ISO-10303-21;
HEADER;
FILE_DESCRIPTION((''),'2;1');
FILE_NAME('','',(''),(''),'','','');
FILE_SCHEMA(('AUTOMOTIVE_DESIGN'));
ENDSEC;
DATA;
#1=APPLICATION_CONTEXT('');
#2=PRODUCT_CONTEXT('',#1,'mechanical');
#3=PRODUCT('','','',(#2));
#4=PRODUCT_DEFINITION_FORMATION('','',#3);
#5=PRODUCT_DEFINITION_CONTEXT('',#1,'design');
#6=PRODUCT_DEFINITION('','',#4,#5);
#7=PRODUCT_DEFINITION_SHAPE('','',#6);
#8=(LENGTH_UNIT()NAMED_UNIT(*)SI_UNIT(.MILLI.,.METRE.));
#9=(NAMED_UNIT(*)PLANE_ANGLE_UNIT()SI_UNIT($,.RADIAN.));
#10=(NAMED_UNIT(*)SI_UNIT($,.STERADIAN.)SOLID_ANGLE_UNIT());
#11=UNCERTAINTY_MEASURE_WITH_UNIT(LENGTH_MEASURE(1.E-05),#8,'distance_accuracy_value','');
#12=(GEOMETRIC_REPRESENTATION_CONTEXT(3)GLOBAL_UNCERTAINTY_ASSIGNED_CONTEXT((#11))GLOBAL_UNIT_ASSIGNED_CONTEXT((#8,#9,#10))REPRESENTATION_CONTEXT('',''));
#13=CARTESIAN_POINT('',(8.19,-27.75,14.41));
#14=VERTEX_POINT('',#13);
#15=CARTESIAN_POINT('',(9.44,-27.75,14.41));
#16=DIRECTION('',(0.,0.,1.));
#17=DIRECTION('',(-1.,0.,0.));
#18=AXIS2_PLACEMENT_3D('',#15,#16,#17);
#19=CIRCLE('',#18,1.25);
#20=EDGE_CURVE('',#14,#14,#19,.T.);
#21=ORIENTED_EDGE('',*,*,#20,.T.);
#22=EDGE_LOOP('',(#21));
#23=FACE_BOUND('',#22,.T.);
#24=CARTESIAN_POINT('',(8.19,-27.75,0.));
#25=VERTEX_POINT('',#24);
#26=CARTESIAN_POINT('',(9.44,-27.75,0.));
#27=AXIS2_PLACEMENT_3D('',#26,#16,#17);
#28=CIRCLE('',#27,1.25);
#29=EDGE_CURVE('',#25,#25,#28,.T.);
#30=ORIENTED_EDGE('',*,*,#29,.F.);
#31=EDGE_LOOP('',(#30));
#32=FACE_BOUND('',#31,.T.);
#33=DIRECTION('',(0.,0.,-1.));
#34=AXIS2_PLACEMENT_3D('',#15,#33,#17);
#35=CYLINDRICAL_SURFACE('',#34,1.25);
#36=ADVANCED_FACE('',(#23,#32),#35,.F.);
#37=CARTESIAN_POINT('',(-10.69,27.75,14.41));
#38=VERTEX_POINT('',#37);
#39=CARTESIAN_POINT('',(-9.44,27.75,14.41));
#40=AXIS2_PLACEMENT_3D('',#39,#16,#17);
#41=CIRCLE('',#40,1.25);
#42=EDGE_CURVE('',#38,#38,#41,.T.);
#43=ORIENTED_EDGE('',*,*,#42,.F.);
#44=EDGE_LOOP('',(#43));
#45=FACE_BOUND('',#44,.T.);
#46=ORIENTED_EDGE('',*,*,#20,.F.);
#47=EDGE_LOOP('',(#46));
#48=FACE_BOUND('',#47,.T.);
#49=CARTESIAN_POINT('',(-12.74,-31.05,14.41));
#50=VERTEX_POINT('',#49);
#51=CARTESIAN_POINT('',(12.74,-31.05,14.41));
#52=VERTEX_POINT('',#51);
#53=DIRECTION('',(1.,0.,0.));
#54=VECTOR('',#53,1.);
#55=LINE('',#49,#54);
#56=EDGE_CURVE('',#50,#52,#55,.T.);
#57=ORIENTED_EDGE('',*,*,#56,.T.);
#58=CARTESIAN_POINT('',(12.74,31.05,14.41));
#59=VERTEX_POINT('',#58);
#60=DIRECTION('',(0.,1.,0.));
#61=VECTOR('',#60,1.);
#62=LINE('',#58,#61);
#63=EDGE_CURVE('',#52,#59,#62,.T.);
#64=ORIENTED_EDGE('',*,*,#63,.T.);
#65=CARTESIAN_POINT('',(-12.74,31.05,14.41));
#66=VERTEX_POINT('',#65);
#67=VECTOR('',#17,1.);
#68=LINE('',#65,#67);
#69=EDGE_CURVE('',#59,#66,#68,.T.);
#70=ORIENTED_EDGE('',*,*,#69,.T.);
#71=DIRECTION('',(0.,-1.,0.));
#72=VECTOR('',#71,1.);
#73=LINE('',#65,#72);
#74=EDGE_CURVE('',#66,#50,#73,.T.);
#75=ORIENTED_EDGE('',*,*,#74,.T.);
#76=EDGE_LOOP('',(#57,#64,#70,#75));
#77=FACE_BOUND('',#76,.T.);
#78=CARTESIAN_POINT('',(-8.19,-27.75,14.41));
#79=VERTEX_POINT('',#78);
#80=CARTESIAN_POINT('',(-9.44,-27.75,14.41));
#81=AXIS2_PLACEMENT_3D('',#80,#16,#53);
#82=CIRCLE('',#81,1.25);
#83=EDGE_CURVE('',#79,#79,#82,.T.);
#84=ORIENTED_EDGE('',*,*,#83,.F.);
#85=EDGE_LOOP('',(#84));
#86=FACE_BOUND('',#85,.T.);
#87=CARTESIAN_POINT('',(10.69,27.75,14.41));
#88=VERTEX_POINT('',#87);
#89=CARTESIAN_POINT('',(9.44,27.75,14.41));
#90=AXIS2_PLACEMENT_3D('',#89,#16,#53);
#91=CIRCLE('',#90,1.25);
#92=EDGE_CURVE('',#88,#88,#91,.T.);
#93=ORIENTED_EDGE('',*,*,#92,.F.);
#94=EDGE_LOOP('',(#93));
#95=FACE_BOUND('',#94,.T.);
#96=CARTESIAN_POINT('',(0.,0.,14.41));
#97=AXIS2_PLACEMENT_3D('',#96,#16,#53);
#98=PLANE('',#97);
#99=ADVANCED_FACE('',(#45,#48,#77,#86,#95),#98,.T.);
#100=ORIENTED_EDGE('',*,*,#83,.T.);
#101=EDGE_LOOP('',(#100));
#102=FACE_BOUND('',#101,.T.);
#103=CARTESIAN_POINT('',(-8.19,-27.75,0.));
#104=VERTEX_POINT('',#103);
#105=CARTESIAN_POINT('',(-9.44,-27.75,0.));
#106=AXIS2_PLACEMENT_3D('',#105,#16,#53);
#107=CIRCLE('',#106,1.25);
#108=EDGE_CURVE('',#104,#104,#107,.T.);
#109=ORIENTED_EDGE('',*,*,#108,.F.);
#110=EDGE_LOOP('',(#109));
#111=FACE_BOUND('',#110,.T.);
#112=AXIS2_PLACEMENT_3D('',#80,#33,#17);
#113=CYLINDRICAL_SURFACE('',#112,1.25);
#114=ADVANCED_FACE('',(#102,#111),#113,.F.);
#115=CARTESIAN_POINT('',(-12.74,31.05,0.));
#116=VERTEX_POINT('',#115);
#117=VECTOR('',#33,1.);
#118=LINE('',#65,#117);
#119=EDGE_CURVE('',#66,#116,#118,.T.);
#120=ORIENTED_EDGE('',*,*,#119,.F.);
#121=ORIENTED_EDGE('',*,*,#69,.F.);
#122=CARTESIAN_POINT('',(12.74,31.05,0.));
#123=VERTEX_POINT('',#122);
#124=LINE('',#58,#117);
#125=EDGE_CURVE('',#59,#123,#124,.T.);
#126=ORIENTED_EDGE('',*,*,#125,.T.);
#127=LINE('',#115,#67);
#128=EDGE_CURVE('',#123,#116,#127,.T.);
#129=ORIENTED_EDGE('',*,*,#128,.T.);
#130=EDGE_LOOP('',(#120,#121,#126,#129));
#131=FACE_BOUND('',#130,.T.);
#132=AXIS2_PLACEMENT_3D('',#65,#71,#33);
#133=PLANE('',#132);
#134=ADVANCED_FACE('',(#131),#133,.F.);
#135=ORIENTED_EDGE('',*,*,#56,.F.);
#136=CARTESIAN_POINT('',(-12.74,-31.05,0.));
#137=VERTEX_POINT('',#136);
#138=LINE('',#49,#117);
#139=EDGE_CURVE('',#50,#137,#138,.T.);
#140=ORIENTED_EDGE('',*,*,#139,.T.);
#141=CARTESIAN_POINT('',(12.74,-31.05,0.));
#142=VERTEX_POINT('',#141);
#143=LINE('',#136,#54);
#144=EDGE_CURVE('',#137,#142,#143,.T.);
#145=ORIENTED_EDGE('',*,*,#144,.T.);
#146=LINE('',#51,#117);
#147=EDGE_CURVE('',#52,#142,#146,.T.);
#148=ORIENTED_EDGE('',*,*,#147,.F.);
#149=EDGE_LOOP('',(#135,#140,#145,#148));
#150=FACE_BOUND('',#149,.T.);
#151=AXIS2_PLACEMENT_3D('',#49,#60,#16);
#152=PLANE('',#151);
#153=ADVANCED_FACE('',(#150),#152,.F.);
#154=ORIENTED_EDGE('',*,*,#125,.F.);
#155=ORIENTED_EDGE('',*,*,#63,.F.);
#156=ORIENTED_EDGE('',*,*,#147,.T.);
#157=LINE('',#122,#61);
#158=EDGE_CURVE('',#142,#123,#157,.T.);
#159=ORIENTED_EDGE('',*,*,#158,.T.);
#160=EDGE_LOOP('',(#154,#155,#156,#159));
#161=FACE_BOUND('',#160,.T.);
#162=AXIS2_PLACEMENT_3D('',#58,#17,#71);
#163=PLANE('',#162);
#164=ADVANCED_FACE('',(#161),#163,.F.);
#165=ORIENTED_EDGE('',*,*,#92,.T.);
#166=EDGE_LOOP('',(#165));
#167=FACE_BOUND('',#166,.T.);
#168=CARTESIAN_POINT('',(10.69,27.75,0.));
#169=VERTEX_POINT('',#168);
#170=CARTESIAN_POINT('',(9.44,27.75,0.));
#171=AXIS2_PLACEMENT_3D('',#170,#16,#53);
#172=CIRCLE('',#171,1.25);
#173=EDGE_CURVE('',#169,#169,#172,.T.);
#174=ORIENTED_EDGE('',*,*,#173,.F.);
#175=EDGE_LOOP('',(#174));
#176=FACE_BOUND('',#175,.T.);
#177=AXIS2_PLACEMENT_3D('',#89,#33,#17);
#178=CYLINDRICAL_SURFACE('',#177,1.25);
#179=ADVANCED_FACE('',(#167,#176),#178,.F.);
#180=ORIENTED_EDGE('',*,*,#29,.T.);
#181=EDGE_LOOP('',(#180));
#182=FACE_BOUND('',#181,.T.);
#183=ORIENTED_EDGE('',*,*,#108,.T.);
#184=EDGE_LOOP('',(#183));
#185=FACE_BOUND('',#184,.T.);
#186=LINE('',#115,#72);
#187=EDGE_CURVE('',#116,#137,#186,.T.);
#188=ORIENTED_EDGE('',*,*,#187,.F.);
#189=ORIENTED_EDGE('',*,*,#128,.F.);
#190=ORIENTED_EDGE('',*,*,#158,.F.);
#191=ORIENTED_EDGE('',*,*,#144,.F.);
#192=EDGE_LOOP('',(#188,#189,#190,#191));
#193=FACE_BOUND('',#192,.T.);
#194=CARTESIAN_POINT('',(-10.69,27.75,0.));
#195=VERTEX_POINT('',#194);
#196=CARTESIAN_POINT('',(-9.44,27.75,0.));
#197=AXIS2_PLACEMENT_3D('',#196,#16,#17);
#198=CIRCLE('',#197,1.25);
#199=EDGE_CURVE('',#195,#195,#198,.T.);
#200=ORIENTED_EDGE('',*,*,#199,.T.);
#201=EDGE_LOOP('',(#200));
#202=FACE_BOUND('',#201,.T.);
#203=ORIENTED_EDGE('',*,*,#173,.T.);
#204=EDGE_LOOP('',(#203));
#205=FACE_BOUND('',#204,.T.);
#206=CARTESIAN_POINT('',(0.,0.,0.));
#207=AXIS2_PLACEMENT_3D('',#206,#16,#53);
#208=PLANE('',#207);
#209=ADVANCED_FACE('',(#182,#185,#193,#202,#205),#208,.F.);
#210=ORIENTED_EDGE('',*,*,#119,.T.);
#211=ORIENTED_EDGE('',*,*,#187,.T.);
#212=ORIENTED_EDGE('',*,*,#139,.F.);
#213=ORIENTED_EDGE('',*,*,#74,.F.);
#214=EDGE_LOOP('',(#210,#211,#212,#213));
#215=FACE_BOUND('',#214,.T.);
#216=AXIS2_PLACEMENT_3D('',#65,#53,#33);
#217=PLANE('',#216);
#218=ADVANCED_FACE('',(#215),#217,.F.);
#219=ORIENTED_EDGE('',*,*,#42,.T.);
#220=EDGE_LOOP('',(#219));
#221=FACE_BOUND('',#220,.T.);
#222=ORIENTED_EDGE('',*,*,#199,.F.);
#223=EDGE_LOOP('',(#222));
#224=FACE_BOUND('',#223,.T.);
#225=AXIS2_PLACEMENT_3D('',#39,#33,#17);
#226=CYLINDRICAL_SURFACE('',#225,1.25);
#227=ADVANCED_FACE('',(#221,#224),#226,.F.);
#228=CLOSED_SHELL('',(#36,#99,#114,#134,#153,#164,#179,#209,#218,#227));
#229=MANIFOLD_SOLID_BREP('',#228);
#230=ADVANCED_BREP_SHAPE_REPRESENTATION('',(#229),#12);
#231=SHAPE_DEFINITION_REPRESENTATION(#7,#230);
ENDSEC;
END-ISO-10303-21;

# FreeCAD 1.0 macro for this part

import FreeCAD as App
import Part
import Sketcher
from FreeCAD import Vector


def add_polygon(sketch, points):
    """Adds a closed chain of lines whose ends are joined by coincident constraints."""
    first, n = sketch.GeometryCount, len(points)
    for a, b in zip(points, points[1:] + points[:1]):
        sketch.addGeometry(Part.LineSegment(App.Vector(*a, 0), App.Vector(*b, 0)), False)
    for i in range(n):
        sketch.addConstraint(Sketcher.Constraint("Coincident", first + i, 2, first + (i + 1) % n, 1))

doc = App.newDocument("Part")
body = doc.addObject("PartDesign::Body", "Body")

# Sketch on XY plane
sketch1 = body.newObject("Sketcher::SketchObject", "Sketch")
sketch1.AttachmentSupport = (doc.getObject("XY_Plane"), [""])
sketch1.MapMode = "FlatFace"
add_polygon(sketch1, [(-12.7, 31.1), (-12.7, -31.1), (12.7, -31.1), (12.7, 31.1)])  # lines 0-3
sketch1.addGeometry(Part.Circle(Vector(-9.4, -27.8, 0), Vector(0, 0, 1), 1.2), False)  # 4
sketch1.addGeometry(Part.Circle(Vector(9.4, -27.8, 0), Vector(0, 0, 1), 1.2), False)  # 5
sketch1.addGeometry(Part.Circle(Vector(-9.4, 27.8, 0), Vector(0, 0, 1), 1.2), False)  # 6
sketch1.addGeometry(Part.Circle(Vector(9.4, 27.8, 0), Vector(0, 0, 1), 1.2), False)  # 7
sketch1.addConstraint([
    Sketcher.Constraint("Vertical", 0),
    Sketcher.Constraint("Horizontal", 1),
    Sketcher.Constraint("Vertical", 2),
    Sketcher.Constraint("Horizontal", 3),
    Sketcher.Constraint("Equal", 4, 5),
    Sketcher.Constraint("Equal", 5, 6),
    Sketcher.Constraint("Equal", 6, 7),
    Sketcher.Constraint("Symmetric", 5, 3, 6, 3, -1, 1),
    Sketcher.Constraint("Symmetric", 4, 3, 7, 3, -1, 1),
    Sketcher.Constraint("Symmetric", 0, 2, 2, 2, -1, 1),
    Sketcher.Constraint("Symmetric", 4, 3, 5, 3, -2),
    Sketcher.Constraint("Diameter", 4, 2.5),
    Sketcher.Constraint("DistanceY", 0, 2, 0, 1, 62.1),
    Sketcher.Constraint("DistanceX", 1, 1, 1, 2, 25.48),
    Sketcher.Constraint("DistanceY", 4, 3, 6, 3, 55.5),
    Sketcher.Constraint("DistanceX", 0, 2, 4, 3, 3.3),
])
pad1 = body.newObject("PartDesign::Pad", "Pad")
pad1.Profile = sketch1
pad1.Length = 14.41

doc.recompute()
